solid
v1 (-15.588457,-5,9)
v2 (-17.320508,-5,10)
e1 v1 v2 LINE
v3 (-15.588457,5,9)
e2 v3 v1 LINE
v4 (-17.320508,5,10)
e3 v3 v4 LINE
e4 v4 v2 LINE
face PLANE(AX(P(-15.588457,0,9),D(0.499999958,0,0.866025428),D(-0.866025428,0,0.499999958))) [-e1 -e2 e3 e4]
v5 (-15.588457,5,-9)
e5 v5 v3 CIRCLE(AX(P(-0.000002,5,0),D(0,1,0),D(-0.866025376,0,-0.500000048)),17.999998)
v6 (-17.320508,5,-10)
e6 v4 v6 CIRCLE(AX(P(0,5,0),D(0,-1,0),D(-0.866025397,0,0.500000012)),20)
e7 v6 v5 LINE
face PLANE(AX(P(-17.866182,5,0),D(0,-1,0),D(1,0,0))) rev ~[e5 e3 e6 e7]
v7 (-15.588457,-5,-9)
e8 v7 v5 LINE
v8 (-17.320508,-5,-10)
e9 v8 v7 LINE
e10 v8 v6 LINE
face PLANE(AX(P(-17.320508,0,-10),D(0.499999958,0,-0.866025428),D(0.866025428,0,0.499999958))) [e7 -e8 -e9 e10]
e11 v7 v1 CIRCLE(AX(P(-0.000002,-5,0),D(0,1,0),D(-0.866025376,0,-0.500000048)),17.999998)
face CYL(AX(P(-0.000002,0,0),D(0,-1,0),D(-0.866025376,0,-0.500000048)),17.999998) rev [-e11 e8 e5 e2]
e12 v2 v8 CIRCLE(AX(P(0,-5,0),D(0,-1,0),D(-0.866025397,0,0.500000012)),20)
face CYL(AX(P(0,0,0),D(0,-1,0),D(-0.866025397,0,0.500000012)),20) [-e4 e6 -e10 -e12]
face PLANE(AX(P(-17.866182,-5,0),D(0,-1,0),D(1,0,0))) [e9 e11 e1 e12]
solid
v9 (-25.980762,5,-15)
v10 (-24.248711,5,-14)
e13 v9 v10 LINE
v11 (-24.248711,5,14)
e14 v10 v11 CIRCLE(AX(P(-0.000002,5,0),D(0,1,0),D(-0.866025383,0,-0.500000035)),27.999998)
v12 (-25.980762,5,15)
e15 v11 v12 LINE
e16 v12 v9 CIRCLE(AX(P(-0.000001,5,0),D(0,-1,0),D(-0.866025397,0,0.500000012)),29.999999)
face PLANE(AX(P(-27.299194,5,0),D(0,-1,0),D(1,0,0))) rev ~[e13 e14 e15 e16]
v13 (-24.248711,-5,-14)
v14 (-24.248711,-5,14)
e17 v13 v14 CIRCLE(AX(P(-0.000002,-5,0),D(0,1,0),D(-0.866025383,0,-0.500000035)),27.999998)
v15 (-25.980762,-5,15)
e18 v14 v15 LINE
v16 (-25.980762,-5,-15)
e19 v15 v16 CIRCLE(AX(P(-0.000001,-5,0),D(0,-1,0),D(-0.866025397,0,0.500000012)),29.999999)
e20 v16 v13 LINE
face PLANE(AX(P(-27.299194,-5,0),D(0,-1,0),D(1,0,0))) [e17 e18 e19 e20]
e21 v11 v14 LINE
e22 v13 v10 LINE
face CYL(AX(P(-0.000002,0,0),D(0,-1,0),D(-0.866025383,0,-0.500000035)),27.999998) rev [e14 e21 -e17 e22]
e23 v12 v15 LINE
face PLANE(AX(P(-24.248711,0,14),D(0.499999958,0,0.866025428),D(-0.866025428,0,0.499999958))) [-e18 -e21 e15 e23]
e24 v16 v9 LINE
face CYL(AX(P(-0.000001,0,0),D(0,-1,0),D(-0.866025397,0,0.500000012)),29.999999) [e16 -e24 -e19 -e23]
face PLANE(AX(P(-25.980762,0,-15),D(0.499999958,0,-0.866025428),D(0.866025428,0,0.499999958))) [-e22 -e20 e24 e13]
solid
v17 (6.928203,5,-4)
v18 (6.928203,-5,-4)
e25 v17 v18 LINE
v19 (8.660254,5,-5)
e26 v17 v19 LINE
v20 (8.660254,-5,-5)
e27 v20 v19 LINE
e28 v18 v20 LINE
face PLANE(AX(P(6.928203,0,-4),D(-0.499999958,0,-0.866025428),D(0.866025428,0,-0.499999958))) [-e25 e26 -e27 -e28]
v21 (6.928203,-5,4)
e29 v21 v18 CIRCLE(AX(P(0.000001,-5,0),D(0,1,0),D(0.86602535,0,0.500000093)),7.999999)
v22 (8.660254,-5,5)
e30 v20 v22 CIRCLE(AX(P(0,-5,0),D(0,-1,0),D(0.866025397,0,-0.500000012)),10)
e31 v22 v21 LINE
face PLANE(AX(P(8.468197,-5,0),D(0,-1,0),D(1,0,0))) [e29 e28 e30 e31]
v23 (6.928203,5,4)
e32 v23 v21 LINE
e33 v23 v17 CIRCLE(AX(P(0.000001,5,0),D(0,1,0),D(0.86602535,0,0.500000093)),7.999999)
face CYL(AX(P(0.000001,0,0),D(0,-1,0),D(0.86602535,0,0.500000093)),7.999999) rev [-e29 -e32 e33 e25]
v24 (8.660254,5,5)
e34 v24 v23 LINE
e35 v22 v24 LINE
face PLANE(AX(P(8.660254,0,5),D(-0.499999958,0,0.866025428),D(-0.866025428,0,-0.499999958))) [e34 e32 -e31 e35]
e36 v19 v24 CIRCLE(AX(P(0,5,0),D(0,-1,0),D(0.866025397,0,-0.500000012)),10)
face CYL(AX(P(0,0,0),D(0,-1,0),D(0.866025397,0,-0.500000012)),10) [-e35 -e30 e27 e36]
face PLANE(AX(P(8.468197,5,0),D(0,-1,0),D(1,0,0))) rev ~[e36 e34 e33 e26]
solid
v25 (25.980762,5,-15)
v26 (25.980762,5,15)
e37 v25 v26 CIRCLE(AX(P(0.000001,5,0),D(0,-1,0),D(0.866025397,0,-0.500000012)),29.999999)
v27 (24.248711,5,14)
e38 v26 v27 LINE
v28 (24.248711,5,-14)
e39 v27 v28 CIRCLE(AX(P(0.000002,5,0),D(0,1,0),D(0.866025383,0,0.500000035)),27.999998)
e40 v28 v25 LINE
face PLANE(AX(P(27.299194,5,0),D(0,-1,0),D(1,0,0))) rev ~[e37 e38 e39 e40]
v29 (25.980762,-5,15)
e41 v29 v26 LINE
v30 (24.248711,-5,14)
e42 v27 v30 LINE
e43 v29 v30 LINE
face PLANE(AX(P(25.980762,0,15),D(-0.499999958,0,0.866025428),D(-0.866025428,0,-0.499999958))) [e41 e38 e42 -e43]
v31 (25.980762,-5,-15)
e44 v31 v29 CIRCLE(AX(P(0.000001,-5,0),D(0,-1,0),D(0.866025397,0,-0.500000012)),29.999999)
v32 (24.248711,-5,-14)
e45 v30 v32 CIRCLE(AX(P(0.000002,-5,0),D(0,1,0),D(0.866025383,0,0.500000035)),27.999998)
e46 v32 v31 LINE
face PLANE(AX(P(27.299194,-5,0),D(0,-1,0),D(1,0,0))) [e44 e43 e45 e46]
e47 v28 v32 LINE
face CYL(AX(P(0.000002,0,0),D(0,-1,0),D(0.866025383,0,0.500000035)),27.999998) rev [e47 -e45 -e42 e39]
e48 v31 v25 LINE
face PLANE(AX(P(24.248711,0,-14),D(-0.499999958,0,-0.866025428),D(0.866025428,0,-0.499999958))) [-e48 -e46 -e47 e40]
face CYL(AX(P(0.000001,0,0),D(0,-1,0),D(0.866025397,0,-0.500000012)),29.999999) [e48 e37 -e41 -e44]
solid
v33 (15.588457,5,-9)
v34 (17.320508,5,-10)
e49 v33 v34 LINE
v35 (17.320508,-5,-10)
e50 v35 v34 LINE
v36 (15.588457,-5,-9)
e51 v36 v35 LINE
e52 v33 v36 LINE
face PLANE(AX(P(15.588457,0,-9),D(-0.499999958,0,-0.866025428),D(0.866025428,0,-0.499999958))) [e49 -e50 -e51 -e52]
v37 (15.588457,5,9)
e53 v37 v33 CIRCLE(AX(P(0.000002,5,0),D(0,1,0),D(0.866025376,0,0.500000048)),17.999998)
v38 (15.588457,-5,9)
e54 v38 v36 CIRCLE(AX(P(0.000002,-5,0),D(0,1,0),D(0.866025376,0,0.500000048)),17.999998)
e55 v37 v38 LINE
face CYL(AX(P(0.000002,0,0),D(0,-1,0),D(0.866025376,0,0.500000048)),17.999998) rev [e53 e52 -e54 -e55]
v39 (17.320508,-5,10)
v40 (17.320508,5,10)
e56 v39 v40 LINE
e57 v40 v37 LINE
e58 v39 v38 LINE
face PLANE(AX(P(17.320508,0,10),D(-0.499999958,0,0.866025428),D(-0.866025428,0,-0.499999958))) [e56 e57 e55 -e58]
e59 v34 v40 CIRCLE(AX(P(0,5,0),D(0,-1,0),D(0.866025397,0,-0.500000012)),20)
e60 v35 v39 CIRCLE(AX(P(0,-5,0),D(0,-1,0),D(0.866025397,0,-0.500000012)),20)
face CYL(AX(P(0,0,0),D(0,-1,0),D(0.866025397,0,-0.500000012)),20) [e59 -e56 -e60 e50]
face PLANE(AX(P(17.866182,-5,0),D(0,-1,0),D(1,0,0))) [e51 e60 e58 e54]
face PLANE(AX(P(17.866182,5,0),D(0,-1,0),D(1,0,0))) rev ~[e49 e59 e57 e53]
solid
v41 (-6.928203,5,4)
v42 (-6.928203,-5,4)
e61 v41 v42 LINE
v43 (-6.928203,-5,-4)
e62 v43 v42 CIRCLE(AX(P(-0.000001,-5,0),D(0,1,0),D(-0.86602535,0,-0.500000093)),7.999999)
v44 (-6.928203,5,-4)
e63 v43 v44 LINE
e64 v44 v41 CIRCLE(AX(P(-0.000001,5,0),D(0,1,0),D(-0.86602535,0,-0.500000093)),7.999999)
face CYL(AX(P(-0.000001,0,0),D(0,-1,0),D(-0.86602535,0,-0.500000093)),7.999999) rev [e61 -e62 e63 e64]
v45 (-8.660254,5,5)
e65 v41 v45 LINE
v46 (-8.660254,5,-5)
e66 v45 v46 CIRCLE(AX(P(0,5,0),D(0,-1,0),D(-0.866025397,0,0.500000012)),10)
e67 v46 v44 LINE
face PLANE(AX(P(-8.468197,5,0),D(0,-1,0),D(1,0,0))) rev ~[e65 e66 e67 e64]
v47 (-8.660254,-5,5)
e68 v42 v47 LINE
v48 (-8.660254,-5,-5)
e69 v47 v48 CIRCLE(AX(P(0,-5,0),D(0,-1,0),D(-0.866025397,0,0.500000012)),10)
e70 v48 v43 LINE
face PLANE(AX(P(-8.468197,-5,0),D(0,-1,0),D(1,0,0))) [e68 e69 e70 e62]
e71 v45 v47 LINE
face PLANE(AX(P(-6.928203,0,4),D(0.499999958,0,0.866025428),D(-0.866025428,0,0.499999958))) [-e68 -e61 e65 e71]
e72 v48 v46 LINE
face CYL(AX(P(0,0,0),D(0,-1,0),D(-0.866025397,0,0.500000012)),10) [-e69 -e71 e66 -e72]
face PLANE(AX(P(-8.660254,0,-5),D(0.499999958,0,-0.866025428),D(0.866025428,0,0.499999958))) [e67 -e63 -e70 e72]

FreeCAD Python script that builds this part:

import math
import FreeCAD as App
import Part
import Sketcher
from FreeCAD import Vector
Q = App.Units.Quantity

doc = App.newDocument("Part")
body = doc.addObject("PartDesign::Body", "Body")
body.AllowCompound = True

# Sketch on XZ plane
sketch1 = body.newObject("Sketcher::SketchObject", "Sketch")
sketch1.AttachmentSupport = (doc.getObject("XZ_Plane"), [""])
sketch1.MapMode = "FlatFace"
sketch1.addGeometry(Part.LineSegment(Vector(25.980762, 15, 0), Vector(24.248711, 14, 0)), False)
sketch1.addGeometry(Part.ArcOfCircle(Part.Circle(Vector(0.000002, 0, 0), Vector(0, 0, 1), 27.999998), math.radians(-30.000002), math.radians(30.000002)), False)
sketch1.addGeometry(Part.LineSegment(Vector(24.248711, -14, 0), Vector(25.980762, -15, 0)), False)
sketch1.addGeometry(Part.ArcOfCircle(Part.Circle(Vector(0.000001, 0, 0), Vector(0, 0, 1), 29.999999), math.radians(-30.000001), math.radians(30.000001)), False)
sketch1.addGeometry(Part.LineSegment(Vector(17.320508, 10, 0), Vector(15.588457, 9, 0)), False)
sketch1.addGeometry(Part.ArcOfCircle(Part.Circle(Vector(0.000002, 0, 0), Vector(0, 0, 1), 17.999998), math.radians(-30.000003), math.radians(30.000003)), False)
sketch1.addGeometry(Part.LineSegment(Vector(15.588457, -9, 0), Vector(17.320508, -10, 0)), False)
sketch1.addGeometry(Part.ArcOfCircle(Part.Circle(Vector(0, 0, 0), Vector(0, 0, 1), 20), math.radians(-30.000001), math.radians(30.000001)), False)
sketch1.addGeometry(Part.LineSegment(Vector(8.660254, 5, 0), Vector(6.928203, 4, 0)), False)
sketch1.addGeometry(Part.ArcOfCircle(Part.Circle(Vector(0.000001, 0, 0), Vector(0, 0, 1), 7.999999), math.radians(-30.000006), math.radians(30.000006)), False)
sketch1.addGeometry(Part.LineSegment(Vector(6.928203, -4, 0), Vector(8.660254, -5, 0)), False)
sketch1.addGeometry(Part.ArcOfCircle(Part.Circle(Vector(0, 0, 0), Vector(0, 0, 1), 10), math.radians(-30.000001), math.radians(30.000001)), False)
sketch1.addGeometry(Part.ArcOfCircle(Part.Circle(Vector(-0.000001, 0, 0), Vector(0, 0, 1), 7.999999), math.radians(149.999994), math.radians(210.000006)), False)
sketch1.addGeometry(Part.LineSegment(Vector(-6.928203, 4, 0), Vector(-8.660254, 5, 0)), False)
sketch1.addGeometry(Part.ArcOfCircle(Part.Circle(Vector(0, 0, 0), Vector(0, 0, 1), 10), math.radians(149.999999), math.radians(210.000001)), False)
sketch1.addGeometry(Part.LineSegment(Vector(-8.660254, -5, 0), Vector(-6.928203, -4, 0)), False)
sketch1.addGeometry(Part.ArcOfCircle(Part.Circle(Vector(-0.000002, 0, 0), Vector(0, 0, 1), 17.999998), math.radians(149.999997), math.radians(210.000003)), False)
sketch1.addGeometry(Part.LineSegment(Vector(-15.588457, 9, 0), Vector(-17.320508, 10, 0)), False)
sketch1.addGeometry(Part.ArcOfCircle(Part.Circle(Vector(0, 0, 0), Vector(0, 0, 1), 20), math.radians(149.999999), math.radians(210.000001)), False)
sketch1.addGeometry(Part.LineSegment(Vector(-17.320508, -10, 0), Vector(-15.588457, -9, 0)), False)
sketch1.addGeometry(Part.ArcOfCircle(Part.Circle(Vector(-0.000002, 0, 0), Vector(0, 0, 1), 27.999998), math.radians(149.999998), math.radians(210.000002)), False)
sketch1.addGeometry(Part.LineSegment(Vector(-24.248711, 14, 0), Vector(-25.980762, 15, 0)), False)
sketch1.addGeometry(Part.ArcOfCircle(Part.Circle(Vector(-0.000001, 0, 0), Vector(0, 0, 1), 29.999999), math.radians(149.999999), math.radians(210.000001)), False)
sketch1.addGeometry(Part.LineSegment(Vector(-25.980762, -15, 0), Vector(-24.248711, -14, 0)), False)
sketch1.addConstraint(Sketcher.Constraint("Coincident", 0, 2, 1, 2))
sketch1.addConstraint(Sketcher.Constraint("Coincident", 1, 1, 2, 1))
sketch1.addConstraint(Sketcher.Constraint("Coincident", 2, 2, 3, 1))
sketch1.addConstraint(Sketcher.Constraint("Coincident", 3, 2, 0, 1))
sketch1.addConstraint(Sketcher.Constraint("Coincident", 4, 2, 5, 2))
sketch1.addConstraint(Sketcher.Constraint("Coincident", 5, 1, 6, 1))
sketch1.addConstraint(Sketcher.Constraint("Coincident", 6, 2, 7, 1))
sketch1.addConstraint(Sketcher.Constraint("Coincident", 7, 2, 4, 1))
sketch1.addConstraint(Sketcher.Constraint("Coincident", 8, 2, 9, 2))
sketch1.addConstraint(Sketcher.Constraint("Coincident", 9, 1, 10, 1))
sketch1.addConstraint(Sketcher.Constraint("Coincident", 10, 2, 11, 1))
sketch1.addConstraint(Sketcher.Constraint("Coincident", 11, 2, 8, 1))
sketch1.addConstraint(Sketcher.Constraint("Coincident", 12, 1, 13, 1))
sketch1.addConstraint(Sketcher.Constraint("Coincident", 13, 2, 14, 1))
sketch1.addConstraint(Sketcher.Constraint("Coincident", 14, 2, 15, 1))
sketch1.addConstraint(Sketcher.Constraint("Coincident", 15, 2, 12, 2))
sketch1.addConstraint(Sketcher.Constraint("Coincident", 16, 1, 17, 1))
sketch1.addConstraint(Sketcher.Constraint("Coincident", 17, 2, 18, 1))
sketch1.addConstraint(Sketcher.Constraint("Coincident", 18, 2, 19, 1))
sketch1.addConstraint(Sketcher.Constraint("Coincident", 19, 2, 16, 2))
sketch1.addConstraint(Sketcher.Constraint("Coincident", 20, 1, 21, 1))
sketch1.addConstraint(Sketcher.Constraint("Coincident", 21, 2, 22, 1))
sketch1.addConstraint(Sketcher.Constraint("Coincident", 22, 2, 23, 1))
sketch1.addConstraint(Sketcher.Constraint("Coincident", 23, 2, 20, 2))
sketch1.addConstraint(Sketcher.Constraint("Coincident", 1, 3, -1, 1))
sketch1.addConstraint(Sketcher.Constraint("Coincident", 3, 3, -1, 1))
sketch1.addConstraint(Sketcher.Constraint("Coincident", 5, 3, -1, 1))
sketch1.addConstraint(Sketcher.Constraint("Coincident", 7, 3, -1, 1))
sketch1.addConstraint(Sketcher.Constraint("Coincident", 9, 3, -1, 1))
sketch1.addConstraint(Sketcher.Constraint("Coincident", 11, 3, -1, 1))
sketch1.addConstraint(Sketcher.Constraint("Coincident", 12, 3, -1, 1))
sketch1.addConstraint(Sketcher.Constraint("Coincident", 14, 3, -1, 1))
sketch1.addConstraint(Sketcher.Constraint("Coincident", 16, 3, -1, 1))
sketch1.addConstraint(Sketcher.Constraint("Coincident", 18, 3, -1, 1))
sketch1.addConstraint(Sketcher.Constraint("Coincident", 20, 3, -1, 1))
sketch1.addConstraint(Sketcher.Constraint("Coincident", 22, 3, -1, 1))
sketch1.addConstraint(Sketcher.Constraint("Equal", 9, 12))
sketch1.addConstraint(Sketcher.Constraint("Equal", 11, 14))
sketch1.addConstraint(Sketcher.Constraint("Equal", 5, 16))
sketch1.addConstraint(Sketcher.Constraint("Equal", 7, 18))
sketch1.addConstraint(Sketcher.Constraint("Equal", 1, 20))
sketch1.addConstraint(Sketcher.Constraint("Equal", 3, 22))
sketch1.addConstraint(Sketcher.Constraint("Parallel", 0, 4))
sketch1.addConstraint(Sketcher.Constraint("Parallel", 2, 6))
sketch1.addConstraint(Sketcher.Constraint("Parallel", 4, 8))
sketch1.addConstraint(Sketcher.Constraint("Parallel", 6, 10))
sketch1.addConstraint(Sketcher.Constraint("Parallel", 10, 13))
sketch1.addConstraint(Sketcher.Constraint("Parallel", 8, 15))
sketch1.addConstraint(Sketcher.Constraint("Parallel", 13, 17))
sketch1.addConstraint(Sketcher.Constraint("Parallel", 15, 19))
sketch1.addConstraint(Sketcher.Constraint("Parallel", 17, 21))
sketch1.addConstraint(Sketcher.Constraint("Parallel", 19, 23))
sketch1.addConstraint(Sketcher.Constraint("Horizontal", 8, 2, 12, 1))
sketch1.addConstraint(Sketcher.Constraint("Horizontal", 11, 2, 13, 2))
sketch1.addConstraint(Sketcher.Constraint("Horizontal", 10, 2, 14, 2))
sketch1.addConstraint(Sketcher.Constraint("Horizontal", 4, 2, 16, 1))
sketch1.addConstraint(Sketcher.Constraint("Horizontal", 6, 2, 18, 2))
sketch1.addConstraint(Sketcher.Constraint("Horizontal", 0, 2, 20, 1))
sketch1.addConstraint(Sketcher.Constraint("Horizontal", 2, 2, 22, 2))
sketch1.addConstraint(Sketcher.Constraint("Vertical", 0, 2, 1, 1))
sketch1.addConstraint(Sketcher.Constraint("Vertical", 4, 2, 5, 1))
sketch1.addConstraint(Sketcher.Constraint("Vertical", 8, 2, 9, 1))
sketch1.addConstraint(Sketcher.Constraint("Equal", 2, 4))
sketch1.addConstraint(Sketcher.Constraint("Equal", 6, 8))
sketch1.addConstraint(Sketcher.Constraint("Radius", 1, Q("27.999998 mm")))
sketch1.addConstraint(Sketcher.Constraint("Radius", 3, Q("29.999999 mm")))
sketch1.addConstraint(Sketcher.Constraint("Radius", 5, Q("17.999998 mm")))
sketch1.addConstraint(Sketcher.Constraint("Radius", 9, Q("7.999999 mm")))
sketch1.addConstraint(Sketcher.Constraint("Angle", 0, Q("-150.000003 deg")))
sketch1.addConstraint(Sketcher.Constraint("DistanceY", -1, 1, 0, 2, Q("14 mm")))
sketch1.addConstraint(Sketcher.Constraint("DistanceY", -1, 1, 4, 2, Q("9 mm")))
sketch1.addConstraint(Sketcher.Constraint("DistanceY", -1, 1, 8, 2, Q("4 mm")))
pad1 = body.newObject("PartDesign::Pad", "Pad")
pad1.Profile = sketch1
pad1.Type = "TwoLengths"
pad1.Length = 5
pad1.Length2 = 5

doc.recompute()
